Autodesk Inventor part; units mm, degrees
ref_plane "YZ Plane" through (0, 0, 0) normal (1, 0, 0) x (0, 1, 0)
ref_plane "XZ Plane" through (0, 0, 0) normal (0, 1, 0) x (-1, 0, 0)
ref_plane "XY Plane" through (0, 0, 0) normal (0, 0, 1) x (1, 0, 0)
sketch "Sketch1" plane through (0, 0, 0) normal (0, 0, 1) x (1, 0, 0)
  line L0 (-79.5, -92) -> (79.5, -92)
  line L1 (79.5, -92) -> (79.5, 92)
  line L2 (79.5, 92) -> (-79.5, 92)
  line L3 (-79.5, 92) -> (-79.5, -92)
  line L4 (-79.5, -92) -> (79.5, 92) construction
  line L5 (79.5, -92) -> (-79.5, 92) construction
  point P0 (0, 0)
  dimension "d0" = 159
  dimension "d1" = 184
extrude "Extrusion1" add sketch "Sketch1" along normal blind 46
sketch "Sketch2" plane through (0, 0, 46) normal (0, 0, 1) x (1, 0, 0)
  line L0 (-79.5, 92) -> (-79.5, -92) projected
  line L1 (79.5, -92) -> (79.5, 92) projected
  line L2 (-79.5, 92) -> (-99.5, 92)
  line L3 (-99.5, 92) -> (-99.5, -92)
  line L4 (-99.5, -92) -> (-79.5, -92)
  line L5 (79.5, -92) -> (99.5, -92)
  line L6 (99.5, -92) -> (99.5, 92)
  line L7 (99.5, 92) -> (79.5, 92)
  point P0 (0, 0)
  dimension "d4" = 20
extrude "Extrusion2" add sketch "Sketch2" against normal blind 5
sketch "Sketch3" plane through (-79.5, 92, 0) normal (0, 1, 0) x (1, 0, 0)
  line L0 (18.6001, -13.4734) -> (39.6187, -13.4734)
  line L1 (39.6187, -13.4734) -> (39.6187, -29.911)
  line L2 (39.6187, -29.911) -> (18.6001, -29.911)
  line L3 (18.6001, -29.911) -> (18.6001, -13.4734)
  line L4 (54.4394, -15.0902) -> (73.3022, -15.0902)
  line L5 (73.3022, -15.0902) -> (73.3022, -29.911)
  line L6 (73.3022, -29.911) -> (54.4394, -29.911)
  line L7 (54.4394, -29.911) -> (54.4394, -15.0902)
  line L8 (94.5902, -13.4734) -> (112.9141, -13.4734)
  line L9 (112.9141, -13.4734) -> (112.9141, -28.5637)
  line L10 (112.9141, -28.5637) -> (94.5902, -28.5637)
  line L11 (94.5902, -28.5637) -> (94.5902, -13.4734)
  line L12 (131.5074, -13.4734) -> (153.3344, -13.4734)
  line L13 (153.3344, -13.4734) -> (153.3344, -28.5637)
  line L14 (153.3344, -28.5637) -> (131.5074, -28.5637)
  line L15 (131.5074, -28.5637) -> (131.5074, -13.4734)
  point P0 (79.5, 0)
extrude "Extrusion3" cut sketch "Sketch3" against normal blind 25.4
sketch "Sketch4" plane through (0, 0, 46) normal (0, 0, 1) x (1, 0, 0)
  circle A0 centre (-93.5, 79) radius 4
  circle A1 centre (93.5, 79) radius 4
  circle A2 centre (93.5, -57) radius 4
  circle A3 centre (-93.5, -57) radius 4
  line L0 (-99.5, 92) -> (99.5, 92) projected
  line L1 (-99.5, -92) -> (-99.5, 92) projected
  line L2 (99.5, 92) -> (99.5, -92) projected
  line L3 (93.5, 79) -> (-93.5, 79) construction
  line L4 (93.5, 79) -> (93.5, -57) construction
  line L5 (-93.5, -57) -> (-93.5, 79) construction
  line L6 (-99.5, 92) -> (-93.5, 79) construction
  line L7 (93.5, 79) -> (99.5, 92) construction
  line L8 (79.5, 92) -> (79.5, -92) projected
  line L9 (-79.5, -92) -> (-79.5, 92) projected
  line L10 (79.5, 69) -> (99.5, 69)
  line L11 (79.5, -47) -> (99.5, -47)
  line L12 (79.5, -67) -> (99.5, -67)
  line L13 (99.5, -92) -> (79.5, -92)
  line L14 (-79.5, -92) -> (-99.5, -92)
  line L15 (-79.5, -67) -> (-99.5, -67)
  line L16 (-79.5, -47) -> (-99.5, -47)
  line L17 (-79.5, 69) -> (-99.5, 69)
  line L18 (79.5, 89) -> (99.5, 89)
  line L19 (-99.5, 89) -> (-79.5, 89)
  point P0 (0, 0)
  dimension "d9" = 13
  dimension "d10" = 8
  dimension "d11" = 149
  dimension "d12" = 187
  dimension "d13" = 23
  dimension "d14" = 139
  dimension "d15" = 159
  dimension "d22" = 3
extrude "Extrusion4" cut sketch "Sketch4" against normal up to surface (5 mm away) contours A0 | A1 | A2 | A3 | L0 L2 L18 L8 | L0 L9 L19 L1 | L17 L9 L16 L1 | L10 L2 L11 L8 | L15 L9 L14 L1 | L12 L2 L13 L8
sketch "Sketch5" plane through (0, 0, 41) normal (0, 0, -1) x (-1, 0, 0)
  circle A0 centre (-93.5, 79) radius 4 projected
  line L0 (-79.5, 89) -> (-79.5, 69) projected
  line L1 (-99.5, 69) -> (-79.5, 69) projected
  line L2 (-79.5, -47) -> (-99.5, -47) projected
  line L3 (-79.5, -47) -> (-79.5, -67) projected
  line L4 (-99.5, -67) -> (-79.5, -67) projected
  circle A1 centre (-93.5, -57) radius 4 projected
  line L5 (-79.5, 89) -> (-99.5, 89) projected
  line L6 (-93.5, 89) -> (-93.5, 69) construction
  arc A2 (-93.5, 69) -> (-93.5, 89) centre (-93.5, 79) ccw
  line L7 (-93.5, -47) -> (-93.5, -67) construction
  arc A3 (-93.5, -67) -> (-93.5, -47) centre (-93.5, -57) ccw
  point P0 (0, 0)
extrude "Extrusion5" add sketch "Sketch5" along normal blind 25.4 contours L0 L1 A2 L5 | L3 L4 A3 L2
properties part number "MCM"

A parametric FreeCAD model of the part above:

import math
import FreeCAD as App
import Part
import Sketcher
from FreeCAD import Vector


def add_polygon(sketch, points):
    """Adds a closed chain of lines whose ends are joined by coincident constraints."""
    first, n = sketch.GeometryCount, len(points)
    for a, b in zip(points, points[1:] + points[:1]):
        sketch.addGeometry(Part.LineSegment(App.Vector(*a, 0), App.Vector(*b, 0)), False)
    for i in range(n):
        sketch.addConstraint(Sketcher.Constraint("Coincident", first + i, 2, first + (i + 1) % n, 1))

doc = App.newDocument("Part")
body = doc.addObject("PartDesign::Body", "Body")

sketch1 = doc.addObject("Sketcher::SketchObject", "Sketch")
body.addObject(sketch1)
sketch1.AttachmentSupport = (doc.XY_Plane, [""])
sketch1.MapMode = "FlatFace"
add_polygon(sketch1, [(-80, 92), (-80, -92), (80, -92), (80, 92)])
sketch1.addConstraint(Sketcher.Constraint("Vertical", 0))
sketch1.addConstraint(Sketcher.Constraint("Horizontal", 1))
sketch1.addConstraint(Sketcher.Constraint("Vertical", 2))
sketch1.addConstraint(Sketcher.Constraint("Horizontal", 3))
sketch1.addConstraint(Sketcher.Constraint("Symmetric", 0, 2, 2, 2, -1, 1))
sketch1.addConstraint(Sketcher.Constraint("DistanceX", 1, 1, 1, 2, 159.0))
sketch1.addConstraint(Sketcher.Constraint("DistanceY", 0, 2, 0, 1, 184.0))
pad1 = doc.addObject("PartDesign::Pad", "Pad")
body.addObject(pad1)
pad1.Profile = sketch1
pad1.Length = 46

sketch2 = doc.addObject("Sketcher::SketchObject", "Sketch001")
body.addObject(sketch2)
sketch2.AttachmentSupport = (doc.XY_Plane, [""])
sketch2.MapMode = "FlatFace"
sketch2.AttachmentOffset = App.Placement(Vector(0, 0, 46), App.Rotation())
add_polygon(sketch2, [(-80, -92), (-80, 92), (-100, 92), (-100, -92)])
add_polygon(sketch2, [(80, 92), (80, -92), (100, -92), (100, 92)])
sketch2.addConstraint(Sketcher.Constraint("Vertical", 0))
sketch2.addConstraint(Sketcher.Constraint("Horizontal", 1))
sketch2.addConstraint(Sketcher.Constraint("Vertical", 2))
sketch2.addConstraint(Sketcher.Constraint("Horizontal", 3))
sketch2.addConstraint(Sketcher.Constraint("Vertical", 4))
sketch2.addConstraint(Sketcher.Constraint("Horizontal", 5))
sketch2.addConstraint(Sketcher.Constraint("Vertical", 6))
sketch2.addConstraint(Sketcher.Constraint("Horizontal", 7))
sketch2.addConstraint(Sketcher.Constraint("Symmetric", 0, 2, 4, 2, -1, 1))
sketch2.addConstraint(Sketcher.Constraint("Symmetric", 2, 2, 6, 2, -1, 1))
sketch2.addConstraint(Sketcher.Constraint("Horizontal", 3, 2, 4, 2))
sketch2.addConstraint(Sketcher.Constraint("DistanceX", 1, 2, 1, 1, 20.0))
sketch2.addConstraint(Sketcher.Constraint("DistanceY", 0, 1, 0, 2, 184.0))
sketch2.addConstraint(Sketcher.Constraint("DistanceX", 3, 2, 4, 2, 159.0))
pad2 = doc.addObject("PartDesign::Pad", "Pad001")
body.addObject(pad2)
pad2.Profile = sketch2
pad2.Length = 5
pad2.Reversed = True

sketch3 = doc.addObject("Sketcher::SketchObject", "Sketch002")
body.addObject(sketch3)
sketch3.AttachmentSupport = (doc.XZ_Plane, [""])
sketch3.MapMode = "FlatFace"
sketch3.AttachmentOffset = App.Placement(Vector(0, 0, -92), App.Rotation())
add_polygon(sketch3, [(-40, 13), (-61, 13), (-61, 30), (-40, 30)])
add_polygon(sketch3, [(-6, 15), (-25, 15), (-25, 30), (-6, 30)])
add_polygon(sketch3, [(33, 13), (15, 13), (15, 29), (33, 29)])
add_polygon(sketch3, [(74, 13), (52, 13), (52, 29), (74, 29)])
sketch3.addConstraint(Sketcher.Constraint("Horizontal", 0))
sketch3.addConstraint(Sketcher.Constraint("Vertical", 1))
sketch3.addConstraint(Sketcher.Constraint("Horizontal", 2))
sketch3.addConstraint(Sketcher.Constraint("Vertical", 3))
sketch3.addConstraint(Sketcher.Constraint("Horizontal", 4))
sketch3.addConstraint(Sketcher.Constraint("Vertical", 5))
sketch3.addConstraint(Sketcher.Constraint("Horizontal", 6))
sketch3.addConstraint(Sketcher.Constraint("Vertical", 7))
sketch3.addConstraint(Sketcher.Constraint("Horizontal", 8))
sketch3.addConstraint(Sketcher.Constraint("Vertical", 9))
sketch3.addConstraint(Sketcher.Constraint("Horizontal", 10))
sketch3.addConstraint(Sketcher.Constraint("Vertical", 11))
sketch3.addConstraint(Sketcher.Constraint("Horizontal", 12))
sketch3.addConstraint(Sketcher.Constraint("Vertical", 13))
sketch3.addConstraint(Sketcher.Constraint("Horizontal", 14))
sketch3.addConstraint(Sketcher.Constraint("Vertical", 15))
sketch3.addConstraint(Sketcher.Constraint("Horizontal", 2, 2, 5, 2))
sketch3.addConstraint(Sketcher.Constraint("Horizontal", 3, 2, 8, 2))
sketch3.addConstraint(Sketcher.Constraint("Horizontal", 11, 2, 12, 2))
sketch3.addConstraint(Sketcher.Constraint("Horizontal", 10, 2, 13, 2))
sketch3.addConstraint(Sketcher.Constraint("DistanceX", 0, 2, -1, 1, 60.9))
sketch3.addConstraint(Sketcher.Constraint("DistanceX", 8, 2, 8, 1, 18.324))
sketch3.addConstraint(Sketcher.Constraint("DistanceX", 12, 2, 12, 1, 21.827))
sketch3.addConstraint(Sketcher.Constraint("DistanceX", 0, 2, 0, 1, 21.0186))
sketch3.addConstraint(Sketcher.Constraint("DistanceX", 4, 2, 4, 1, 18.8628))
sketch3.addConstraint(Sketcher.Constraint("DistanceY", 1, 1, 1, 2, 16.4376))
sketch3.addConstraint(Sketcher.Constraint("DistanceY", 5, 1, 5, 2, 14.8208))
sketch3.addConstraint(Sketcher.Constraint("DistanceY", 9, 1, 9, 2, 15.0903))
sketch3.addConstraint(Sketcher.Constraint("DistanceY", -1, 1, 1, 2, 29.911))
sketch3.addConstraint(Sketcher.Constraint("DistanceX", -1, 1, 10, 2, 33.414))
sketch3.addConstraint(Sketcher.Constraint("DistanceX", 1, 2, 6, 2, 54.702))
sketch3.addConstraint(Sketcher.Constraint("DistanceX", -1, 1, 12, 2, 52.0074))
pocket1 = doc.addObject("PartDesign::Pocket", "Pocket")
body.addObject(pocket1)
pocket1.Profile = sketch3
pocket1.Length = 25.4
pocket1.Reversed = True

sketch4 = doc.addObject("Sketcher::SketchObject", "Sketch003")
body.addObject(sketch4)
sketch4.AttachmentSupport = (doc.XY_Plane, [""])
sketch4.MapMode = "FlatFace"
sketch4.AttachmentOffset = App.Placement(Vector(0, 0, 46), App.Rotation())
sketch4.addGeometry(Part.Circle(Vector(-93.5, 79, 0), Vector(0, 0, 1), 4), False)
sketch4.addGeometry(Part.Circle(Vector(93.5, 79, 0), Vector(0, 0, 1), 4), False)
sketch4.addGeometry(Part.Circle(Vector(93.5, -57, 0), Vector(0, 0, 1), 4), False)
sketch4.addGeometry(Part.Circle(Vector(-93.5, -57, 0), Vector(0, 0, 1), 4), False)
add_polygon(sketch4, [(99.5, 92), (79.5, 92), (79.5, 89), (99.5, 89)])
add_polygon(sketch4, [(-79.5, 92), (-99.5, 92), (-99.5, 89), (-79.5, 89)])
add_polygon(sketch4, [(-79.5, 69), (-99.5, 69), (-99.5, -47), (-79.5, -47)])
add_polygon(sketch4, [(99.5, 69), (79.5, 69), (79.5, -47), (99.5, -47)])
add_polygon(sketch4, [(-79.5, -67), (-99.5, -67), (-99.5, -92), (-79.5, -92)])
add_polygon(sketch4, [(99.5, -67), (79.5, -67), (79.5, -92), (99.5, -92)])
sketch4.addConstraint(Sketcher.Constraint("Horizontal", 4))
sketch4.addConstraint(Sketcher.Constraint("Vertical", 5))
sketch4.addConstraint(Sketcher.Constraint("Horizontal", 6))
sketch4.addConstraint(Sketcher.Constraint("Vertical", 7))
sketch4.addConstraint(Sketcher.Constraint("Horizontal", 8))
sketch4.addConstraint(Sketcher.Constraint("Vertical", 9))
sketch4.addConstraint(Sketcher.Constraint("Horizontal", 10))
sketch4.addConstraint(Sketcher.Constraint("Vertical", 11))
sketch4.addConstraint(Sketcher.Constraint("Horizontal", 12))
sketch4.addConstraint(Sketcher.Constraint("Vertical", 13))
sketch4.addConstraint(Sketcher.Constraint("Horizontal", 14))
sketch4.addConstraint(Sketcher.Constraint("Vertical", 15))
sketch4.addConstraint(Sketcher.Constraint("Horizontal", 16))
sketch4.addConstraint(Sketcher.Constraint("Vertical", 17))
sketch4.addConstraint(Sketcher.Constraint("Horizontal", 18))
sketch4.addConstraint(Sketcher.Constraint("Vertical", 19))
sketch4.addConstraint(Sketcher.Constraint("Horizontal", 20))
sketch4.addConstraint(Sketcher.Constraint("Vertical", 21))
sketch4.addConstraint(Sketcher.Constraint("Horizontal", 22))
sketch4.addConstraint(Sketcher.Constraint("Vertical", 23))
sketch4.addConstraint(Sketcher.Constraint("Horizontal", 24))
sketch4.addConstraint(Sketcher.Constraint("Vertical", 25))
sketch4.addConstraint(Sketcher.Constraint("Horizontal", 26))
sketch4.addConstraint(Sketcher.Constraint("Vertical", 27))
sketch4.addConstraint(Sketcher.Constraint("Equal", 0, 1))
sketch4.addConstraint(Sketcher.Constraint("Equal", 1, 2))
sketch4.addConstraint(Sketcher.Constraint("Equal", 2, 3))
sketch4.addConstraint(Sketcher.Constraint("Symmetric", 7, 2, 21, 2, -1, 1))
sketch4.addConstraint(Sketcher.Constraint("Symmetric", 11, 2, 25, 2, -1, 1))
sketch4.addConstraint(Sketcher.Constraint("Symmetric", 0, 3, 1, 3, -2))
sketch4.addConstraint(Sketcher.Constraint("Symmetric", 2, 3, 3, 3, -2))
sketch4.addConstraint(Sketcher.Constraint("Symmetric", 7, 2, 8, 2, -2))
sketch4.addConstraint(Sketcher.Constraint("Symmetric", 5, 2, 10, 2, -2))
sketch4.addConstraint(Sketcher.Constraint("Symmetric", 15, 2, 16, 2, -2))
sketch4.addConstraint(Sketcher.Constraint("Symmetric", 13, 2, 18, 2, -2))
sketch4.addConstraint(Sketcher.Constraint("Symmetric", 23, 2, 24, 2, -2))
sketch4.addConstraint(Sketcher.Constraint("Vertical", 1, 3, 2, 3))
sketch4.addConstraint(Sketcher.Constraint("Vertical", 9, 2, 12, 2))
sketch4.addConstraint(Sketcher.Constraint("Vertical", 11, 2, 14, 2))
sketch4.addConstraint(Sketcher.Constraint("Vertical", 19, 2, 26, 2))
sketch4.addConstraint(Sketcher.Constraint("Diameter", 0, 8.0))
sketch4.addConstraint(Sketcher.Constraint("DistanceY", 5, 2, 5, 1, 3.0))
sketch4.addConstraint(Sketcher.Constraint("DistanceX", 0, 3, 1, 3, 187.0))
sketch4.addConstraint(Sketcher.Constraint("DistanceY", 1, 3, 4, 2, 13.0))
sketch4.addConstraint(Sketcher.Constraint("DistanceY", 2, 3, 4, 2, 149.0))
sketch4.addConstraint(Sketcher.Constraint("DistanceX", 10, 2, 5, 2, 159.0))
sketch4.addConstraint(Sketcher.Constraint("DistanceY", 12, 2, 8, 2, 23.0))
sketch4.addConstraint(Sketcher.Constraint("DistanceX", 4, 2, 4, 1, 20.0))
sketch4.addConstraint(Sketcher.Constraint("DistanceY", 13, 2, 13, 1, 116.0))
sketch4.addConstraint(Sketcher.Constraint("DistanceY", 21, 2, 21, 1, 25.0))
sketch4.addConstraint(Sketcher.Constraint("DistanceY", -1, 1, 0, 3, 79.0))
pocket2 = doc.addObject("PartDesign::Pocket", "Pocket001")
body.addObject(pocket2)
pocket2.Profile = sketch4
pocket2.Length = 5

sketch5 = doc.addObject("Sketcher::SketchObject", "Sketch004")
body.addObject(sketch5)
sketch5.AttachmentSupport = (doc.XY_Plane, [""])
sketch5.MapMode = "FlatFace"
sketch5.AttachmentOffset = App.Placement(Vector(0, 0, 41), App.Rotation())
sketch5.addGeometry(Part.LineSegment(Vector(80, 69, 0), Vector(80, 89, 0)), False)
sketch5.addGeometry(Part.LineSegment(Vector(80, 89, 0), Vector(94, 89, 0)), False)
sketch5.addGeometry(Part.ArcOfCircle(Part.Circle(Vector(94, 79, 0), Vector(0, 0, 1), 10), math.radians(90), math.radians(270)), False)
sketch5.addGeometry(Part.LineSegment(Vector(94, 69, 0), Vector(80, 69, 0)), False)
sketch5.addGeometry(Part.LineSegment(Vector(80, -67, 0), Vector(80, -47, 0)), False)
sketch5.addGeometry(Part.LineSegment(Vector(80, -47, 0), Vector(94, -47, 0)), False)
sketch5.addGeometry(Part.ArcOfCircle(Part.Circle(Vector(94, -57, 0), Vector(0, 0, 1), 10), math.radians(90), math.radians(270)), False)
sketch5.addGeometry(Part.LineSegment(Vector(94, -67, 0), Vector(80, -67, 0)), False)
sketch5.addConstraint(Sketcher.Constraint("Coincident", 0, 2, 1, 1))
sketch5.addConstraint(Sketcher.Constraint("Tangent", 1, 2, 2, 1))
sketch5.addConstraint(Sketcher.Constraint("Tangent", 2, 2, 3, 1))
sketch5.addConstraint(Sketcher.Constraint("Coincident", 3, 2, 0, 1))
sketch5.addConstraint(Sketcher.Constraint("Coincident", 4, 2, 5, 1))
sketch5.addConstraint(Sketcher.Constraint("Tangent", 5, 2, 6, 1))
sketch5.addConstraint(Sketcher.Constraint("Tangent", 6, 2, 7, 1))
sketch5.addConstraint(Sketcher.Constraint("Coincident", 7, 2, 4, 1))
sketch5.addConstraint(Sketcher.Constraint("Vertical", 0))
sketch5.addConstraint(Sketcher.Constraint("Horizontal", 1))
sketch5.addConstraint(Sketcher.Constraint("Horizontal", 3))
sketch5.addConstraint(Sketcher.Constraint("Vertical", 4))
sketch5.addConstraint(Sketcher.Constraint("Horizontal", 5))
sketch5.addConstraint(Sketcher.Constraint("Horizontal", 7))
sketch5.addConstraint(Sketcher.Constraint("Equal", 2, 6))
sketch5.addConstraint(Sketcher.Constraint("Vertical", 2, 3, 6, 3))
sketch5.addConstraint(Sketcher.Constraint("Vertical", 3, 2, 4, 2))
sketch5.addConstraint(Sketcher.Constraint("Radius", 2, 10.0))
sketch5.addConstraint(Sketcher.Constraint("DistanceX", 1, 1, 1, 2, 14.0))
sketch5.addConstraint(Sketcher.Constraint("DistanceY", -1, 1, 2, 3, 79.0))
sketch5.addConstraint(Sketcher.Constraint("DistanceY", 6, 3, -1, 1, 57.0))
sketch5.addConstraint(Sketcher.Constraint("DistanceX", -1, 1, 2, 3, 93.5))
pad3 = doc.addObject("PartDesign::Pad", "Pad002")
body.addObject(pad3)
pad3.Profile = sketch5
pad3.Length = 25.4
pad3.Reversed = True

doc.recompute()
